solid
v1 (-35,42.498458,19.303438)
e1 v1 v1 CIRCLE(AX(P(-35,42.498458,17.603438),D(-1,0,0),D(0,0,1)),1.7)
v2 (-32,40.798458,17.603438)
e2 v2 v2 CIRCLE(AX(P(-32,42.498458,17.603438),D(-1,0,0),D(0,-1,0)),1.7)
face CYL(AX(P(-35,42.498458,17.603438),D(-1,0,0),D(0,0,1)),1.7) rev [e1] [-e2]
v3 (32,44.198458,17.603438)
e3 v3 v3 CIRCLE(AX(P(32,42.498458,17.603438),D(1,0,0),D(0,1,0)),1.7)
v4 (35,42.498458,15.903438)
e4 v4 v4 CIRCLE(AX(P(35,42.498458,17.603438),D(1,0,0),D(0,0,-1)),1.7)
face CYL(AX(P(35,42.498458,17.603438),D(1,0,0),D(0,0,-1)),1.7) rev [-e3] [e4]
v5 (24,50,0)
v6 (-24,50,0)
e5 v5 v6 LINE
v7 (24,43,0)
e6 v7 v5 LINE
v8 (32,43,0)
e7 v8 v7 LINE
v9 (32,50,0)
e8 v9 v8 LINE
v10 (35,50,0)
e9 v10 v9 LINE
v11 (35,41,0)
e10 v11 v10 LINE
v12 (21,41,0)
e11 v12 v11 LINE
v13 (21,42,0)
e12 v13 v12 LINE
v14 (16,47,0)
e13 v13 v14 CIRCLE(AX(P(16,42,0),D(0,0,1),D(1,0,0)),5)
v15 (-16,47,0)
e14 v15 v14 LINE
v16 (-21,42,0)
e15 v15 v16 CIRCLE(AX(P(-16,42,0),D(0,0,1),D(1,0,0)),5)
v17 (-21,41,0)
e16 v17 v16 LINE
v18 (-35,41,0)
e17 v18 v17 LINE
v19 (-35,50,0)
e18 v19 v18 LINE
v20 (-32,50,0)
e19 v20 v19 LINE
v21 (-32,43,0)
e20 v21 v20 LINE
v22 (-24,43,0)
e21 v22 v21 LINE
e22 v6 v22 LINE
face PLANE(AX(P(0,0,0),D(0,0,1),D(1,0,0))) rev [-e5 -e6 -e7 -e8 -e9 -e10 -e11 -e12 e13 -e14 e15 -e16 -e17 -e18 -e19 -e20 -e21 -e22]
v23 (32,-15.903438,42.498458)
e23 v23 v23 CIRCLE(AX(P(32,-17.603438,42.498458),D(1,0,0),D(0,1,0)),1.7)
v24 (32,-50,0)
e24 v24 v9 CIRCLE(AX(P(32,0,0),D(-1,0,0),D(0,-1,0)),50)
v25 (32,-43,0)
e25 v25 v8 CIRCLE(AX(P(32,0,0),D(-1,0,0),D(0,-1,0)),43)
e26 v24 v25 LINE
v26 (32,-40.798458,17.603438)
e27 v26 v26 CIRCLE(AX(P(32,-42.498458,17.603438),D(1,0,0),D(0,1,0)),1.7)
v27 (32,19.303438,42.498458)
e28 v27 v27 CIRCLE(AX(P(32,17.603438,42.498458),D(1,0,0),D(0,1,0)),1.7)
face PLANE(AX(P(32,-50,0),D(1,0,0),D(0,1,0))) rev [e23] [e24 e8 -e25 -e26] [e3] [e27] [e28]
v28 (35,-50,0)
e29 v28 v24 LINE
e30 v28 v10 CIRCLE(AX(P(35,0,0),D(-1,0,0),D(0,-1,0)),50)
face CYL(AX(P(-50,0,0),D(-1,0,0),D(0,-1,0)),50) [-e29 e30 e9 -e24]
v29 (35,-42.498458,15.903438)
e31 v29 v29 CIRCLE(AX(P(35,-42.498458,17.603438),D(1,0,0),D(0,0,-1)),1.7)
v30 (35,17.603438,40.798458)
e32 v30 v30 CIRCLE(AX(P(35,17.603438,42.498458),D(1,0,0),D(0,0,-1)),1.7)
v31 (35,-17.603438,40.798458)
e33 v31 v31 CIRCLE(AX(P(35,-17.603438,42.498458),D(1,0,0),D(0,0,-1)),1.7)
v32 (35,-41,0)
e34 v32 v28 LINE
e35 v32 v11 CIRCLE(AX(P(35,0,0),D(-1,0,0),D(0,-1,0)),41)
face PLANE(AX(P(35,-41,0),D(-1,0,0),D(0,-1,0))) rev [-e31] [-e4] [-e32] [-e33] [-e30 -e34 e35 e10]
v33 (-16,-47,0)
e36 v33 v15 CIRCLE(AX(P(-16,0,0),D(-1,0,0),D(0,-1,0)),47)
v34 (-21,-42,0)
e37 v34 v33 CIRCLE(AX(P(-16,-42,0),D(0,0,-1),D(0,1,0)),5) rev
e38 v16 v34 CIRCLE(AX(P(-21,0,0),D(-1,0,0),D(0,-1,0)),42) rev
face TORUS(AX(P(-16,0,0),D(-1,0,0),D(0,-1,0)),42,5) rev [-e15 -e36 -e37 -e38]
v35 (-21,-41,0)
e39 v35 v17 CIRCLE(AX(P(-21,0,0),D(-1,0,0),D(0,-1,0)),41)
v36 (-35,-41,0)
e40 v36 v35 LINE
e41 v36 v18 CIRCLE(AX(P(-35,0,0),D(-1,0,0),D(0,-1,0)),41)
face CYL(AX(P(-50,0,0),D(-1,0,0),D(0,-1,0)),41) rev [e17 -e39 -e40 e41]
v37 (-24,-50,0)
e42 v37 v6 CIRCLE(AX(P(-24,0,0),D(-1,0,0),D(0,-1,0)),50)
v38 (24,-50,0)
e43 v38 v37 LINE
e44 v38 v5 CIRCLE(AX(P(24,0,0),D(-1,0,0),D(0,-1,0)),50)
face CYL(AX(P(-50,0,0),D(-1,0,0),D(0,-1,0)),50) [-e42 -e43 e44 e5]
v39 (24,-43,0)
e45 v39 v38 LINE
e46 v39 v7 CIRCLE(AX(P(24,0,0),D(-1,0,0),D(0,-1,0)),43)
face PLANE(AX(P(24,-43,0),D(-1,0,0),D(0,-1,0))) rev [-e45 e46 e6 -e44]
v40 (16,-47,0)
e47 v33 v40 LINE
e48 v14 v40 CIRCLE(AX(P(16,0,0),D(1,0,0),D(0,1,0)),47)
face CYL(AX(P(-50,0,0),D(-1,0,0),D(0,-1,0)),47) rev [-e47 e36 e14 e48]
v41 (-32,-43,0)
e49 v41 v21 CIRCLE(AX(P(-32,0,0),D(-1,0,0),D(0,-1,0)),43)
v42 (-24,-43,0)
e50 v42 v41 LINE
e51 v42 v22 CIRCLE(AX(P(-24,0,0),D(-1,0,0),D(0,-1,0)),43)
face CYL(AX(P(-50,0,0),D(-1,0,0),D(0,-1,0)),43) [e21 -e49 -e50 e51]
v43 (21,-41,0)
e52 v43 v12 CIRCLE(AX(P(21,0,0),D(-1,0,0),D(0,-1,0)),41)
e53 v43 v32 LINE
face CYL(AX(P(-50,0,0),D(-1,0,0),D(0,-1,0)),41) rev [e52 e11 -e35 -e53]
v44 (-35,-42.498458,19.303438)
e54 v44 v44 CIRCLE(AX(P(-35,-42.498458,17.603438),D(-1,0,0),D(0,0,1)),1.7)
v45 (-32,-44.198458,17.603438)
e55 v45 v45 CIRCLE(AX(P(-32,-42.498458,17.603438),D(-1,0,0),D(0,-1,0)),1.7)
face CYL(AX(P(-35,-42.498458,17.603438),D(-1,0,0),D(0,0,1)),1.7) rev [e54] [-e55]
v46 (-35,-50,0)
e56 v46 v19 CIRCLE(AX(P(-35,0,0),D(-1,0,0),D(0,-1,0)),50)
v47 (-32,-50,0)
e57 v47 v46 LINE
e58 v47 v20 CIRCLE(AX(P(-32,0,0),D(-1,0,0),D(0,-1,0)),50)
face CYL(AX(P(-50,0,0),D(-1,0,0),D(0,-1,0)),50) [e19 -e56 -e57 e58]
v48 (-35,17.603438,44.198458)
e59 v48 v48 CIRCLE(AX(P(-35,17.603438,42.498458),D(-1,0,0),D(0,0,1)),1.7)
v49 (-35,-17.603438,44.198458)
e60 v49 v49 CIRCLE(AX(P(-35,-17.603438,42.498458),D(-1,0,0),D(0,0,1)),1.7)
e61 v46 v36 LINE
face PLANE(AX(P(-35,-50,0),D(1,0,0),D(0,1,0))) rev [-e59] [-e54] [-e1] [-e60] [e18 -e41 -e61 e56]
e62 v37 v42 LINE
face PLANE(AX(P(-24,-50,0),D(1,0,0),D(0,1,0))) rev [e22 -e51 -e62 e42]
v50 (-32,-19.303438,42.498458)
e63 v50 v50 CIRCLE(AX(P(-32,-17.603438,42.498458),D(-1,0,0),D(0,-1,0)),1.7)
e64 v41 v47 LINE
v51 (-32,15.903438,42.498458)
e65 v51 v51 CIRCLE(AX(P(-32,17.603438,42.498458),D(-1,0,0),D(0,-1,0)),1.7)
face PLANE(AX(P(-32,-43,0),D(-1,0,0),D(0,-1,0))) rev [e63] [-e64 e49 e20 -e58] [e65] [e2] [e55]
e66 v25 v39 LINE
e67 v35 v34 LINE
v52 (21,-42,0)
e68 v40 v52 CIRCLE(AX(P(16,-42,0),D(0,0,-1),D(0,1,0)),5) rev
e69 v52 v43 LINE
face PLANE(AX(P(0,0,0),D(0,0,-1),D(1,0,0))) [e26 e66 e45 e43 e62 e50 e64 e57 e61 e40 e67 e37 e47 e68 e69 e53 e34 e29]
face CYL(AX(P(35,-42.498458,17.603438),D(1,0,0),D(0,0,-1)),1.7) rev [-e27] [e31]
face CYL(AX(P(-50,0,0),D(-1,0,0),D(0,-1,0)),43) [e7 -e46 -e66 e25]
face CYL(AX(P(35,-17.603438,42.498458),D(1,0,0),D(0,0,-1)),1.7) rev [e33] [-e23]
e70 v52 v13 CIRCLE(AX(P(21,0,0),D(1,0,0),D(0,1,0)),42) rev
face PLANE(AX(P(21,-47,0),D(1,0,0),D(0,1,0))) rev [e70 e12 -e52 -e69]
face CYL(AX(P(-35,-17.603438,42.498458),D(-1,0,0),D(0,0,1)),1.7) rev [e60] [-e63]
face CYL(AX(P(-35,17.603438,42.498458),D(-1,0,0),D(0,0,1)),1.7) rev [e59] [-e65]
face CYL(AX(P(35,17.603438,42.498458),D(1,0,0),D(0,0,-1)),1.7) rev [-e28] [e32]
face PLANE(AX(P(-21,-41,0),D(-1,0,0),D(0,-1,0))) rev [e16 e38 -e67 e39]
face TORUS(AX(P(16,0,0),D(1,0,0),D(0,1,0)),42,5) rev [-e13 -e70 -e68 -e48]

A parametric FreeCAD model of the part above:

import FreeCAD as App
import Part
import Sketcher
Q = App.Units.Quantity


def edges_at(feature, points):
    """Names of the edges that pass closest to the given points."""
    edges = feature.Shape.Edges
    near = lambda p: min(range(len(edges)), key=lambda i: edges[i].distToShape(Part.Vertex(*p))[0])
    return sorted({f"Edge{near(p) + 1}" for p in points})


def add_polygon(sketch, points):
    """Adds a closed chain of lines whose ends are joined by coincident constraints."""
    first, n = sketch.GeometryCount, len(points)
    for a, b in zip(points, points[1:] + points[:1]):
        sketch.addGeometry(Part.LineSegment(App.Vector(*a, 0), App.Vector(*b, 0)), False)
    for i in range(n):
        sketch.addConstraint(Sketcher.Constraint("Coincident", first + i, 2, first + (i + 1) % n, 1))

doc = App.newDocument("Part")
body = doc.addObject("PartDesign::Body", "Body")

# Sketch on XY plane
sketch1 = doc.addObject("Sketcher::SketchObject", "Sketch")
body.addObject(sketch1)
sketch1.AttachmentSupport = (doc.XY_Plane, [""])
sketch1.MapMode = "FlatFace"
add_polygon(sketch1, [(-35, 41), (-21, 41), (-21, 47), (21, 47), (21, 41), (35, 41), (35, 50), (32, 50), (32, 43), (24, 43), (24, 50), (-24, 50), (-24, 43), (-32, 43), (-32, 50), (-35, 50)])  # lines 0-15
sketch1.addConstraint([
    Sketcher.Constraint("Horizontal", 0),
    Sketcher.Constraint("Vertical", 1),
    Sketcher.Constraint("Horizontal", 2),
    Sketcher.Constraint("Vertical", 3),
    Sketcher.Constraint("Horizontal", 4),
    Sketcher.Constraint("Vertical", 5),
    Sketcher.Constraint("Horizontal", 6),
    Sketcher.Constraint("Vertical", 7),
    Sketcher.Constraint("Horizontal", 8),
    Sketcher.Constraint("Vertical", 9),
    Sketcher.Constraint("Horizontal", 10),
    Sketcher.Constraint("Vertical", 11),
    Sketcher.Constraint("Horizontal", 12),
    Sketcher.Constraint("Vertical", 13),
    Sketcher.Constraint("Horizontal", 14),
    Sketcher.Constraint("Vertical", 15),
    Sketcher.Constraint("Symmetric", 0, 2, 3, 2, -2),
    Sketcher.Constraint("Symmetric", 8, 2, 11, 2, -2),
    Sketcher.Constraint("Symmetric", 6, 2, 13, 2, -2),
    Sketcher.Constraint("Horizontal", 6, 2, 9, 2),
    Sketcher.Constraint("Equal", 0, 4),
    Sketcher.Constraint("DistanceX", 0, 1, 0, 2, Q("14 mm")),
    Sketcher.Constraint("DistanceX", 2, 1, 2, 2, Q("42 mm")),
    Sketcher.Constraint("DistanceX", 6, 2, 6, 1, Q("3 mm")),
    Sketcher.Constraint("DistanceX", 8, 2, 8, 1, Q("8 mm")),
    Sketcher.Constraint("DistanceY", 1, 1, 1, 2, Q("6 mm")),
    Sketcher.Constraint("DistanceY", 5, 1, 5, 2, Q("9 mm")),
    Sketcher.Constraint("DistanceY", 7, 2, 7, 1, Q("7 mm")),
    Sketcher.Constraint("DistanceY", -1, 1, 0, 2, Q("41 mm")),
])
revolution = doc.addObject("PartDesign::Revolution", "Revolution")
body.addObject(revolution)
revolution.Profile = sketch1
revolution.ReferenceAxis = (sketch1, ["H_Axis"])
revolution.Angle = 180

# Sketch on YZ plane
sketch2 = doc.addObject("Sketcher::SketchObject", "Sketch001")
body.addObject(sketch2)
sketch2.AttachmentSupport = (doc.YZ_Plane, [""])
sketch2.MapMode = "FlatFace"
sketch2.AttachmentOffset = App.Placement(App.Vector(0, 0, -35), App.Rotation())
sketch2.addGeometry(Part.Circle(App.Vector(-42.5, 17.6, 0), App.Vector(0, 0, 1), 1.7), False)
sketch2.addConstraint([
    Sketcher.Constraint("Diameter", 0, Q("3.4 mm")),
    Sketcher.Constraint("DistanceX", 0, 3, -1, 1, Q("42.498458 mm")),
    Sketcher.Constraint("DistanceY", -1, 1, 0, 3, Q("17.603438 mm")),
])
doc.recompute()
hole = doc.addObject("PartDesign::Hole", "Hole")
body.addObject(hole)
hole.Profile = sketch2
hole.ThreadType = "None"
hole.Diameter = 3.4
hole.DepthType = "Dimension"
hole.Depth = 3
hole.DrillPoint = "Flat"
hole.Reversed = True
doc.recompute()

polarpattern = doc.addObject("PartDesign::PolarPattern", "PolarPattern")
body.addObject(polarpattern)
polarpattern.Originals = [hole]
polarpattern.Axis = (doc.X_Axis, [""])
polarpattern.Angle = 135
polarpattern.Occurrences = 4
polarpattern.Reversed = True
body.Tip = polarpattern
doc.recompute()

mirrored = doc.addObject("PartDesign::Mirrored", "Mirrored")
body.addObject(mirrored)
mirrored.Originals = [hole]
mirrored.MirrorPlane = (doc.YZ_Plane, [""])
body.Tip = mirrored

# Sketch on YZ plane
sketch3 = doc.addObject("Sketcher::SketchObject", "Sketch002")
body.addObject(sketch3)
sketch3.AttachmentSupport = (doc.YZ_Plane, [""])
sketch3.MapMode = "FlatFace"
sketch3.AttachmentOffset = App.Placement(App.Vector(0, 0, 35), App.Rotation())
sketch3.addGeometry(Part.Circle(App.Vector(-17.6, 42.5, 0), App.Vector(0, 0, 1), 1.7), False)
sketch3.addConstraint([
    Sketcher.Constraint("Diameter", 0, Q("3.4 mm")),
    Sketcher.Constraint("DistanceY", -1, 1, 0, 3, Q("42.498458 mm")),
    Sketcher.Constraint("DistanceX", 0, 3, -1, 1, Q("17.603438 mm")),
])
doc.recompute()
hole2 = doc.addObject("PartDesign::Hole", "Hole001")
body.addObject(hole2)
hole2.Profile = sketch3
hole2.ThreadType = "None"
hole2.Diameter = 3.4
hole2.DepthType = "Dimension"
hole2.Depth = 3
hole2.DrillPoint = "Flat"

# Sketch on YZ plane
sketch4 = doc.addObject("Sketcher::SketchObject", "Sketch003")
body.addObject(sketch4)
sketch4.AttachmentSupport = (doc.YZ_Plane, [""])
sketch4.MapMode = "FlatFace"
sketch4.AttachmentOffset = App.Placement(App.Vector(0, 0, 35), App.Rotation())
sketch4.addGeometry(Part.Circle(App.Vector(17.6, 42.5, 0), App.Vector(0, 0, 1), 1.7), False)
sketch4.addConstraint([
    Sketcher.Constraint("Diameter", 0, Q("3.4 mm")),
    Sketcher.Constraint("DistanceY", -1, 1, 0, 3, Q("42.498458 mm")),
    Sketcher.Constraint("DistanceX", -1, 1, 0, 3, Q("17.603438 mm")),
])
doc.recompute()
hole3 = doc.addObject("PartDesign::Hole", "Hole002")
body.addObject(hole3)
hole3.Profile = sketch4
hole3.ThreadType = "None"
hole3.Diameter = 3.4
hole3.DepthType = "Dimension"
hole3.Depth = 3
hole3.DrillPoint = "Flat"

# Sketch on YZ plane
sketch5 = doc.addObject("Sketcher::SketchObject", "Sketch004")
body.addObject(sketch5)
sketch5.AttachmentSupport = (doc.YZ_Plane, [""])
sketch5.MapMode = "FlatFace"
sketch5.AttachmentOffset = App.Placement(App.Vector(0, 0, 35), App.Rotation())
sketch5.addGeometry(Part.Circle(App.Vector(42.5, 17.6, 0), App.Vector(0, 0, 1), 1.7), False)
sketch5.addConstraint([
    Sketcher.Constraint("Diameter", 0, Q("3.4 mm")),
    Sketcher.Constraint("DistanceX", -1, 1, 0, 3, Q("42.498458 mm")),
    Sketcher.Constraint("DistanceY", -1, 1, 0, 3, Q("17.603438 mm")),
])
doc.recompute()
hole4 = doc.addObject("PartDesign::Hole", "Hole003")
body.addObject(hole4)
hole4.Profile = sketch5
hole4.ThreadType = "None"
hole4.Diameter = 3.4
hole4.DepthType = "Dimension"
hole4.Depth = 3
hole4.DrillPoint = "Flat"
doc.recompute()

fillet = doc.addObject("PartDesign::Fillet", "Fillet")
body.addObject(fillet)
fillet.Base = (hole4, edges_at(hole4, [(21, 0, 47), (-21, 0, 47)]))
fillet.Radius = 5

doc.recompute()
